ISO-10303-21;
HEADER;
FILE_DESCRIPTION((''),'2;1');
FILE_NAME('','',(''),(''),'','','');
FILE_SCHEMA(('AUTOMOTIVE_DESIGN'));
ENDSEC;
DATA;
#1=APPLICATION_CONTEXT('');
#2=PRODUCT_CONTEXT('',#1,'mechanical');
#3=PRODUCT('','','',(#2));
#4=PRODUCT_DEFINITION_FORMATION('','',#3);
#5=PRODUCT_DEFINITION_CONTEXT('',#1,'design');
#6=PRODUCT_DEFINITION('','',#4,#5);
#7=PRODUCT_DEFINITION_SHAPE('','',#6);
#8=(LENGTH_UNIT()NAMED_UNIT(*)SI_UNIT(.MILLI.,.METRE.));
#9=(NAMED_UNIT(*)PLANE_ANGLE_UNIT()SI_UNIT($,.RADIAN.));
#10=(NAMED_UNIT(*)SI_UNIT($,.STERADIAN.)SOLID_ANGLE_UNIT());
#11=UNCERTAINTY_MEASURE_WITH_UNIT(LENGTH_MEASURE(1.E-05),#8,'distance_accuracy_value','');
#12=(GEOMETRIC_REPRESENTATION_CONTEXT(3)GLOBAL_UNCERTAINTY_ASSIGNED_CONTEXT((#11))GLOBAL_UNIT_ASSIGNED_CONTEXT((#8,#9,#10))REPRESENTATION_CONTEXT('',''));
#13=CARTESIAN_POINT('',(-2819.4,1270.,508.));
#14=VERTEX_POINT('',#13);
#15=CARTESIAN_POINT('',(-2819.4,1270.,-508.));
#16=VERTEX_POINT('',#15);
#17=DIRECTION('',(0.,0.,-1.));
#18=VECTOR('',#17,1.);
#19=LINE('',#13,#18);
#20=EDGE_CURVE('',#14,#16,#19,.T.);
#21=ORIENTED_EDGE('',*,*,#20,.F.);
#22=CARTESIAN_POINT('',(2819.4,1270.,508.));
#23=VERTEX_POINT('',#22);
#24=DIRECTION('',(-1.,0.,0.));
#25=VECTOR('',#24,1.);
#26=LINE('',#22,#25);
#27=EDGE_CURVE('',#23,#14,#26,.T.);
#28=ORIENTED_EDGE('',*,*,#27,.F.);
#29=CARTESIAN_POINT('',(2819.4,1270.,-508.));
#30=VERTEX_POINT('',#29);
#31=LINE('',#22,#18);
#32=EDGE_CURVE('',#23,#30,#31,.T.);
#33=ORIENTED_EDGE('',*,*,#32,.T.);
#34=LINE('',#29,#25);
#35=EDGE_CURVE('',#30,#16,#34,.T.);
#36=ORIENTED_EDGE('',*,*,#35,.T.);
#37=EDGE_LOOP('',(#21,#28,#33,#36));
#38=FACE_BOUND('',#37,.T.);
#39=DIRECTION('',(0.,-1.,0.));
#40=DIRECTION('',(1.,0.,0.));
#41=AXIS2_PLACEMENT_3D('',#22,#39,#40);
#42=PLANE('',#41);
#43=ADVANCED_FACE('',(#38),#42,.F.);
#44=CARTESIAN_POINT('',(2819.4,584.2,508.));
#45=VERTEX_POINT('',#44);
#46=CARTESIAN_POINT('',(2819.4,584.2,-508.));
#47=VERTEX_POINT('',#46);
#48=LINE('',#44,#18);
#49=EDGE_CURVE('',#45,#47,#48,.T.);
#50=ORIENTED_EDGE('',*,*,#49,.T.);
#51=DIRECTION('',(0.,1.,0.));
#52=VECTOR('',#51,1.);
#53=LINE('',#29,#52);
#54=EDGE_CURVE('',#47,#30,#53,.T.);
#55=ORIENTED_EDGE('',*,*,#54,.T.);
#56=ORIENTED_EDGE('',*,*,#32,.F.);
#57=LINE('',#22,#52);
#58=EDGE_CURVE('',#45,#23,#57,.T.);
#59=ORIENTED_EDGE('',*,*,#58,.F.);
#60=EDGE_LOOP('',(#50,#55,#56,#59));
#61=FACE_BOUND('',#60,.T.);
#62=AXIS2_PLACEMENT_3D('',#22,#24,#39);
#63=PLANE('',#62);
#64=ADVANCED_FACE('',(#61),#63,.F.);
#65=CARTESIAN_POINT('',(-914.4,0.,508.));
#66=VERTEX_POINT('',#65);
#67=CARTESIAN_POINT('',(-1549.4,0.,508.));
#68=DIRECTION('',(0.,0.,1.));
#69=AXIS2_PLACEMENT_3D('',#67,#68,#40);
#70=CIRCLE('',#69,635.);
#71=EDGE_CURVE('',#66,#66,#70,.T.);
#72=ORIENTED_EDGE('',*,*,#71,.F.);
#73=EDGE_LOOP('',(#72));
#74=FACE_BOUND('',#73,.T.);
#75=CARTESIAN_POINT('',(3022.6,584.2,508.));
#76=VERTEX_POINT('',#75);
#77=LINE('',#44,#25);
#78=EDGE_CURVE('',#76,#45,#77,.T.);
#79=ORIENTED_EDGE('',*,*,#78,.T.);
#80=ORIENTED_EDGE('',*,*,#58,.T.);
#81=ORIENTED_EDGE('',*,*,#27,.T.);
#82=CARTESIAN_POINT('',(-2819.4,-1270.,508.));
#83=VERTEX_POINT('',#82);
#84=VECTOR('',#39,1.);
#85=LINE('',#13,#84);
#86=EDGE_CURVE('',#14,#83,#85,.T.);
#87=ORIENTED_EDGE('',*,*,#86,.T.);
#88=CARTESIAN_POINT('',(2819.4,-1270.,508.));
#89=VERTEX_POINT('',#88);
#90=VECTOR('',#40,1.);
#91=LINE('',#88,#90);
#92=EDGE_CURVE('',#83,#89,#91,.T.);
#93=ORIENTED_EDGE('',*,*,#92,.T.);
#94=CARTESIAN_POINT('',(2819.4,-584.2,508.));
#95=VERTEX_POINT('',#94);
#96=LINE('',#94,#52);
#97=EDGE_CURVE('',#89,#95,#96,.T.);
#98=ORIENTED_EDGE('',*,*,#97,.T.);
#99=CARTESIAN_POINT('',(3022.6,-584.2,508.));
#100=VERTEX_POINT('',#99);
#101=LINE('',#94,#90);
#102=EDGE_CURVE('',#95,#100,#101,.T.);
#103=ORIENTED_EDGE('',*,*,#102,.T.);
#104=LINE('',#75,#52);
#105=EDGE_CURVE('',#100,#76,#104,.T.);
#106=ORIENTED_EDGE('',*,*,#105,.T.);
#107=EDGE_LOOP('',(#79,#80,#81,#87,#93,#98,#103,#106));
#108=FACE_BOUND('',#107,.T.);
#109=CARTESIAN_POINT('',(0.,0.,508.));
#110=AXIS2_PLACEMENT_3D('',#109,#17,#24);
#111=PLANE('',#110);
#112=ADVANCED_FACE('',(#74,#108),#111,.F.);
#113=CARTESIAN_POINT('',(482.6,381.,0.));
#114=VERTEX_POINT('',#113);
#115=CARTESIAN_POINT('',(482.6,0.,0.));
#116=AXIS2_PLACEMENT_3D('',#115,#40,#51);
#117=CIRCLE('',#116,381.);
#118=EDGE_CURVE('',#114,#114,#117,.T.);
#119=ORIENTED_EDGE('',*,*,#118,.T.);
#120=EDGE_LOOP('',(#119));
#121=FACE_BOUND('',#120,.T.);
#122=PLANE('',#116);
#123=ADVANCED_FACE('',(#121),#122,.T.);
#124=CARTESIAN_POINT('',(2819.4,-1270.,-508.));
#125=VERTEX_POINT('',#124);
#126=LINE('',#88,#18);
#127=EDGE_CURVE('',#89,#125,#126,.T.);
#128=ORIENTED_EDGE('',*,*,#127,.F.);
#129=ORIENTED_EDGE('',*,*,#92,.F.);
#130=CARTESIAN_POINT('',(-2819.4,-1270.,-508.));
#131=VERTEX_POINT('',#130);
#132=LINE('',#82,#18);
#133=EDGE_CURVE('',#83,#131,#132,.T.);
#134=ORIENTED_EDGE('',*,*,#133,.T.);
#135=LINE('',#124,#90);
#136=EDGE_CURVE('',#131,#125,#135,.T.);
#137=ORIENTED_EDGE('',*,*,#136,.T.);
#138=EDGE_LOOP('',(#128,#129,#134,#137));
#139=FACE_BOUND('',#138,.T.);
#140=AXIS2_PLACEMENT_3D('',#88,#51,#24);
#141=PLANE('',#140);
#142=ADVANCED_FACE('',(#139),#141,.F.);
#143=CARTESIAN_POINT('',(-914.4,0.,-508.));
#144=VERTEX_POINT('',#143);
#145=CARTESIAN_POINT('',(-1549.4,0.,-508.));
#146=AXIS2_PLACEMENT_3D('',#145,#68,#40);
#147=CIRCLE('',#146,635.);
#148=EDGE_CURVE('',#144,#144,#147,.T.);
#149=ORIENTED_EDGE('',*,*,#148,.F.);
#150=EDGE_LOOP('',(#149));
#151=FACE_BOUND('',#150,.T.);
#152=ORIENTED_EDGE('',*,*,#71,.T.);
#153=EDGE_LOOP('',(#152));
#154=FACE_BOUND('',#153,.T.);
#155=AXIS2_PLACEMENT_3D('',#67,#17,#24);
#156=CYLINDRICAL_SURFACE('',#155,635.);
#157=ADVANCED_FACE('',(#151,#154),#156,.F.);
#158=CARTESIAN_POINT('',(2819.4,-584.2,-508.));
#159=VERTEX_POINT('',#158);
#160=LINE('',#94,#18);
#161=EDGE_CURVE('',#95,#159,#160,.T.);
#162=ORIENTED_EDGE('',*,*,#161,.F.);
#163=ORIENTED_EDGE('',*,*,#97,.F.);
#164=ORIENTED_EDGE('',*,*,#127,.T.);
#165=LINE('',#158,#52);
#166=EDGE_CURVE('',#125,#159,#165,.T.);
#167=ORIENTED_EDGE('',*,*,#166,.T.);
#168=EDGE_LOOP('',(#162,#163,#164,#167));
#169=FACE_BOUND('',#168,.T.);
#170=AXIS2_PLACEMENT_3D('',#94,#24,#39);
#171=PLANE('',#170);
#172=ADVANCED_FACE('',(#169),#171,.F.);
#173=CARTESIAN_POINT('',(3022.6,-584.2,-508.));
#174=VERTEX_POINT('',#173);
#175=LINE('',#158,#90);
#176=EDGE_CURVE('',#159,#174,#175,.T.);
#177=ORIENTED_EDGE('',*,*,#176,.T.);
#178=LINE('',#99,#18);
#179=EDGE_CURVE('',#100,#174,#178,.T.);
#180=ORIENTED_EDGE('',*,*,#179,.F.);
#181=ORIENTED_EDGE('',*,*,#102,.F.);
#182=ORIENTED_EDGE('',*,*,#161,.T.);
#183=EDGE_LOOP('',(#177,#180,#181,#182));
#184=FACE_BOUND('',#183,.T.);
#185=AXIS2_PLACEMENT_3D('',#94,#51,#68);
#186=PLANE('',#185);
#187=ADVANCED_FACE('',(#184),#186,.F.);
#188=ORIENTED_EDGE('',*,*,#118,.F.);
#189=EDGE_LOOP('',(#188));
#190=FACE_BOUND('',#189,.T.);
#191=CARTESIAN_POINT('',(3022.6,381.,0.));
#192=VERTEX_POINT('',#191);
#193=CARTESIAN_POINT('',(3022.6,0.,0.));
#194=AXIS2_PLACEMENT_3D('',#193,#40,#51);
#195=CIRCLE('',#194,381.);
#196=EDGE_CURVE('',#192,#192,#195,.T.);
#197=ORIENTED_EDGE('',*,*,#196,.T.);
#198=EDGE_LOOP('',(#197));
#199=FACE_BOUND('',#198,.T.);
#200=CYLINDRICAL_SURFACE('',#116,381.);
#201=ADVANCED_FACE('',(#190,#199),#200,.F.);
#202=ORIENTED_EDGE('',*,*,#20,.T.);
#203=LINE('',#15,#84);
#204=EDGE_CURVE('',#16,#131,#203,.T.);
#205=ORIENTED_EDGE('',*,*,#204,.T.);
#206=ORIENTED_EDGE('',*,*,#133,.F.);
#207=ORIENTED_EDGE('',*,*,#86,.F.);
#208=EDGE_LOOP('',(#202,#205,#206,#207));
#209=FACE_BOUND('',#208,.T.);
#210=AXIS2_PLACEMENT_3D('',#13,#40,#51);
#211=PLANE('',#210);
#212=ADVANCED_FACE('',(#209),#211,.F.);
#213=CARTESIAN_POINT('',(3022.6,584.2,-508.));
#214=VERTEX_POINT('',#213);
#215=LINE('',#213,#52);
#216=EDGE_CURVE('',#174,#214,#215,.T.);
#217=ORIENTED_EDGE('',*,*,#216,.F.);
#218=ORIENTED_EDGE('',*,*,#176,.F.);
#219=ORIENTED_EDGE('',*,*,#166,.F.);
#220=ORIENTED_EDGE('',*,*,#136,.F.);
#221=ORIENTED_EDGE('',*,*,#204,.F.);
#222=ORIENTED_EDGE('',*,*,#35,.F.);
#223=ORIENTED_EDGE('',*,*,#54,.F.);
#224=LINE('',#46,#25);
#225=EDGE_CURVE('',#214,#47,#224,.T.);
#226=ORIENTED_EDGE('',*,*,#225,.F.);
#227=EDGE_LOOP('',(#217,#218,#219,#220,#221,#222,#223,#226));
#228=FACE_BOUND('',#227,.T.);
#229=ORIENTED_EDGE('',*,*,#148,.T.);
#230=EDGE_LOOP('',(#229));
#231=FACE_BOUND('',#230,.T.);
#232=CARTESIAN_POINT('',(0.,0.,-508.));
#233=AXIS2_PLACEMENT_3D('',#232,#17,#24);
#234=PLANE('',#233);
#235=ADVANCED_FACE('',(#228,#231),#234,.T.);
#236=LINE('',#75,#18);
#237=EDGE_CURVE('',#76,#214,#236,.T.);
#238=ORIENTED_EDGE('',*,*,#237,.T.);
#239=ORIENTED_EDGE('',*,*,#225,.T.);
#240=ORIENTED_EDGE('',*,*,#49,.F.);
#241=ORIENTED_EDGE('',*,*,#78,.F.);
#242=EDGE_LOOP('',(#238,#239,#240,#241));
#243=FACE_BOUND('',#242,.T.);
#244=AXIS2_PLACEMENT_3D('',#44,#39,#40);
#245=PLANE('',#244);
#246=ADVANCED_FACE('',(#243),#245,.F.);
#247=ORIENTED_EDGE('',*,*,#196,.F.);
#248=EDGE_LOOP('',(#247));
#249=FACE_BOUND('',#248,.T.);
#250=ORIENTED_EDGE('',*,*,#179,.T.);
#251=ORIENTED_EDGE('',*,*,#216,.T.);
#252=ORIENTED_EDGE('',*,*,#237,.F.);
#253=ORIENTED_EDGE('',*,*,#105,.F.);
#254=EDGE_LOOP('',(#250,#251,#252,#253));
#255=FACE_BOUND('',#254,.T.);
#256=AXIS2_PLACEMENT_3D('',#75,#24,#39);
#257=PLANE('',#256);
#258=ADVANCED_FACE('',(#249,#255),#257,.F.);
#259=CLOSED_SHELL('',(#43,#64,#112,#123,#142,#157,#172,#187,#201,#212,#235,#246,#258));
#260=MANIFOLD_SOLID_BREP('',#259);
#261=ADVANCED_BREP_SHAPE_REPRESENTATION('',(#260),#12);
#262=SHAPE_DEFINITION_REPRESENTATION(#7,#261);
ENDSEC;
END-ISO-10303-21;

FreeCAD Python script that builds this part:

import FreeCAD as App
import Part
import Sketcher
Q = App.Units.Quantity


def add_polygon(sketch, points):
    """Adds a closed chain of lines whose ends are joined by coincident constraints."""
    first, n = sketch.GeometryCount, len(points)
    for a, b in zip(points, points[1:] + points[:1]):
        sketch.addGeometry(Part.LineSegment(App.Vector(*a, 0), App.Vector(*b, 0)), False)
    for i in range(n):
        sketch.addConstraint(Sketcher.Constraint("Coincident", first + i, 2, first + (i + 1) % n, 1))

doc = App.newDocument("Part")
body = doc.addObject("PartDesign::Body", "Body")

# Sketch on XY plane
sketch1 = body.newObject("Sketcher::SketchObject", "Sketch")
sketch1.AttachmentSupport = (doc.getObject("XY_Plane"), [""])
sketch1.MapMode = "FlatFace"
add_polygon(sketch1, [(2819, -1270), (2819, -584), (3023, -584), (3023, 584), (2819, 584), (2819, 1270), (-2819, 1270), (-2819, -1270)])  # lines 0-7
sketch1.addGeometry(Part.Circle(App.Vector(-1549, 0, 0), App.Vector(0, 0, 1), 635), False)  # 8
sketch1.addConstraint([
    Sketcher.Constraint("Vertical", 0),
    Sketcher.Constraint("Horizontal", 1),
    Sketcher.Constraint("Vertical", 2),
    Sketcher.Constraint("Horizontal", 3),
    Sketcher.Constraint("Vertical", 4),
    Sketcher.Constraint("Horizontal", 5),
    Sketcher.Constraint("Vertical", 6),
    Sketcher.Constraint("Horizontal", 7),
    Sketcher.Constraint("Symmetric", 4, 2, 6, 2, -1, 1),
    Sketcher.Constraint("Symmetric", 0, 2, 3, 2, -1),
    Sketcher.Constraint("PointOnObject", 8, 3, -1),
    Sketcher.Constraint("Diameter", 8, Q("50 in")),
    Sketcher.Constraint("DistanceX", 1, 1, 1, 2, Q("8 in")),
    Sketcher.Constraint("DistanceX", 5, 2, 5, 1, Q("222 in")),
    Sketcher.Constraint("DistanceY", 0, 1, 0, 2, Q("27 in")),
    Sketcher.Constraint("DistanceY", 2, 1, 2, 2, Q("46 in")),
    Sketcher.Constraint("DistanceX", 8, 3, -1, 1, Q("61 in")),
])
pad1 = body.newObject("PartDesign::Pad", "Pad")
pad1.Profile = sketch1
pad1.Length = Q("40 in")
pad1.Midplane = True

# Sketch on YZ plane
sketch2 = body.newObject("Sketcher::SketchObject", "Sketch001")
sketch2.AttachmentSupport = (doc.getObject("YZ_Plane"), [""])
sketch2.MapMode = "FlatFace"
sketch2.AttachmentOffset = App.Placement(App.Vector(0, 0, 119 * 25.4), App.Rotation())
sketch2.addGeometry(Part.Circle(App.Vector(0, 0, 0), App.Vector(0, 0, 1), 381), False)
sketch2.addConstraint([
    Sketcher.Constraint("Coincident", 0, 3, -1, 1),
    Sketcher.Constraint("Diameter", 0, Q("30 in")),
])
pocket1 = body.newObject("PartDesign::Pocket", "Pocket")
pocket1.Profile = sketch2
pocket1.Length = Q("100 in")

doc.recompute()
